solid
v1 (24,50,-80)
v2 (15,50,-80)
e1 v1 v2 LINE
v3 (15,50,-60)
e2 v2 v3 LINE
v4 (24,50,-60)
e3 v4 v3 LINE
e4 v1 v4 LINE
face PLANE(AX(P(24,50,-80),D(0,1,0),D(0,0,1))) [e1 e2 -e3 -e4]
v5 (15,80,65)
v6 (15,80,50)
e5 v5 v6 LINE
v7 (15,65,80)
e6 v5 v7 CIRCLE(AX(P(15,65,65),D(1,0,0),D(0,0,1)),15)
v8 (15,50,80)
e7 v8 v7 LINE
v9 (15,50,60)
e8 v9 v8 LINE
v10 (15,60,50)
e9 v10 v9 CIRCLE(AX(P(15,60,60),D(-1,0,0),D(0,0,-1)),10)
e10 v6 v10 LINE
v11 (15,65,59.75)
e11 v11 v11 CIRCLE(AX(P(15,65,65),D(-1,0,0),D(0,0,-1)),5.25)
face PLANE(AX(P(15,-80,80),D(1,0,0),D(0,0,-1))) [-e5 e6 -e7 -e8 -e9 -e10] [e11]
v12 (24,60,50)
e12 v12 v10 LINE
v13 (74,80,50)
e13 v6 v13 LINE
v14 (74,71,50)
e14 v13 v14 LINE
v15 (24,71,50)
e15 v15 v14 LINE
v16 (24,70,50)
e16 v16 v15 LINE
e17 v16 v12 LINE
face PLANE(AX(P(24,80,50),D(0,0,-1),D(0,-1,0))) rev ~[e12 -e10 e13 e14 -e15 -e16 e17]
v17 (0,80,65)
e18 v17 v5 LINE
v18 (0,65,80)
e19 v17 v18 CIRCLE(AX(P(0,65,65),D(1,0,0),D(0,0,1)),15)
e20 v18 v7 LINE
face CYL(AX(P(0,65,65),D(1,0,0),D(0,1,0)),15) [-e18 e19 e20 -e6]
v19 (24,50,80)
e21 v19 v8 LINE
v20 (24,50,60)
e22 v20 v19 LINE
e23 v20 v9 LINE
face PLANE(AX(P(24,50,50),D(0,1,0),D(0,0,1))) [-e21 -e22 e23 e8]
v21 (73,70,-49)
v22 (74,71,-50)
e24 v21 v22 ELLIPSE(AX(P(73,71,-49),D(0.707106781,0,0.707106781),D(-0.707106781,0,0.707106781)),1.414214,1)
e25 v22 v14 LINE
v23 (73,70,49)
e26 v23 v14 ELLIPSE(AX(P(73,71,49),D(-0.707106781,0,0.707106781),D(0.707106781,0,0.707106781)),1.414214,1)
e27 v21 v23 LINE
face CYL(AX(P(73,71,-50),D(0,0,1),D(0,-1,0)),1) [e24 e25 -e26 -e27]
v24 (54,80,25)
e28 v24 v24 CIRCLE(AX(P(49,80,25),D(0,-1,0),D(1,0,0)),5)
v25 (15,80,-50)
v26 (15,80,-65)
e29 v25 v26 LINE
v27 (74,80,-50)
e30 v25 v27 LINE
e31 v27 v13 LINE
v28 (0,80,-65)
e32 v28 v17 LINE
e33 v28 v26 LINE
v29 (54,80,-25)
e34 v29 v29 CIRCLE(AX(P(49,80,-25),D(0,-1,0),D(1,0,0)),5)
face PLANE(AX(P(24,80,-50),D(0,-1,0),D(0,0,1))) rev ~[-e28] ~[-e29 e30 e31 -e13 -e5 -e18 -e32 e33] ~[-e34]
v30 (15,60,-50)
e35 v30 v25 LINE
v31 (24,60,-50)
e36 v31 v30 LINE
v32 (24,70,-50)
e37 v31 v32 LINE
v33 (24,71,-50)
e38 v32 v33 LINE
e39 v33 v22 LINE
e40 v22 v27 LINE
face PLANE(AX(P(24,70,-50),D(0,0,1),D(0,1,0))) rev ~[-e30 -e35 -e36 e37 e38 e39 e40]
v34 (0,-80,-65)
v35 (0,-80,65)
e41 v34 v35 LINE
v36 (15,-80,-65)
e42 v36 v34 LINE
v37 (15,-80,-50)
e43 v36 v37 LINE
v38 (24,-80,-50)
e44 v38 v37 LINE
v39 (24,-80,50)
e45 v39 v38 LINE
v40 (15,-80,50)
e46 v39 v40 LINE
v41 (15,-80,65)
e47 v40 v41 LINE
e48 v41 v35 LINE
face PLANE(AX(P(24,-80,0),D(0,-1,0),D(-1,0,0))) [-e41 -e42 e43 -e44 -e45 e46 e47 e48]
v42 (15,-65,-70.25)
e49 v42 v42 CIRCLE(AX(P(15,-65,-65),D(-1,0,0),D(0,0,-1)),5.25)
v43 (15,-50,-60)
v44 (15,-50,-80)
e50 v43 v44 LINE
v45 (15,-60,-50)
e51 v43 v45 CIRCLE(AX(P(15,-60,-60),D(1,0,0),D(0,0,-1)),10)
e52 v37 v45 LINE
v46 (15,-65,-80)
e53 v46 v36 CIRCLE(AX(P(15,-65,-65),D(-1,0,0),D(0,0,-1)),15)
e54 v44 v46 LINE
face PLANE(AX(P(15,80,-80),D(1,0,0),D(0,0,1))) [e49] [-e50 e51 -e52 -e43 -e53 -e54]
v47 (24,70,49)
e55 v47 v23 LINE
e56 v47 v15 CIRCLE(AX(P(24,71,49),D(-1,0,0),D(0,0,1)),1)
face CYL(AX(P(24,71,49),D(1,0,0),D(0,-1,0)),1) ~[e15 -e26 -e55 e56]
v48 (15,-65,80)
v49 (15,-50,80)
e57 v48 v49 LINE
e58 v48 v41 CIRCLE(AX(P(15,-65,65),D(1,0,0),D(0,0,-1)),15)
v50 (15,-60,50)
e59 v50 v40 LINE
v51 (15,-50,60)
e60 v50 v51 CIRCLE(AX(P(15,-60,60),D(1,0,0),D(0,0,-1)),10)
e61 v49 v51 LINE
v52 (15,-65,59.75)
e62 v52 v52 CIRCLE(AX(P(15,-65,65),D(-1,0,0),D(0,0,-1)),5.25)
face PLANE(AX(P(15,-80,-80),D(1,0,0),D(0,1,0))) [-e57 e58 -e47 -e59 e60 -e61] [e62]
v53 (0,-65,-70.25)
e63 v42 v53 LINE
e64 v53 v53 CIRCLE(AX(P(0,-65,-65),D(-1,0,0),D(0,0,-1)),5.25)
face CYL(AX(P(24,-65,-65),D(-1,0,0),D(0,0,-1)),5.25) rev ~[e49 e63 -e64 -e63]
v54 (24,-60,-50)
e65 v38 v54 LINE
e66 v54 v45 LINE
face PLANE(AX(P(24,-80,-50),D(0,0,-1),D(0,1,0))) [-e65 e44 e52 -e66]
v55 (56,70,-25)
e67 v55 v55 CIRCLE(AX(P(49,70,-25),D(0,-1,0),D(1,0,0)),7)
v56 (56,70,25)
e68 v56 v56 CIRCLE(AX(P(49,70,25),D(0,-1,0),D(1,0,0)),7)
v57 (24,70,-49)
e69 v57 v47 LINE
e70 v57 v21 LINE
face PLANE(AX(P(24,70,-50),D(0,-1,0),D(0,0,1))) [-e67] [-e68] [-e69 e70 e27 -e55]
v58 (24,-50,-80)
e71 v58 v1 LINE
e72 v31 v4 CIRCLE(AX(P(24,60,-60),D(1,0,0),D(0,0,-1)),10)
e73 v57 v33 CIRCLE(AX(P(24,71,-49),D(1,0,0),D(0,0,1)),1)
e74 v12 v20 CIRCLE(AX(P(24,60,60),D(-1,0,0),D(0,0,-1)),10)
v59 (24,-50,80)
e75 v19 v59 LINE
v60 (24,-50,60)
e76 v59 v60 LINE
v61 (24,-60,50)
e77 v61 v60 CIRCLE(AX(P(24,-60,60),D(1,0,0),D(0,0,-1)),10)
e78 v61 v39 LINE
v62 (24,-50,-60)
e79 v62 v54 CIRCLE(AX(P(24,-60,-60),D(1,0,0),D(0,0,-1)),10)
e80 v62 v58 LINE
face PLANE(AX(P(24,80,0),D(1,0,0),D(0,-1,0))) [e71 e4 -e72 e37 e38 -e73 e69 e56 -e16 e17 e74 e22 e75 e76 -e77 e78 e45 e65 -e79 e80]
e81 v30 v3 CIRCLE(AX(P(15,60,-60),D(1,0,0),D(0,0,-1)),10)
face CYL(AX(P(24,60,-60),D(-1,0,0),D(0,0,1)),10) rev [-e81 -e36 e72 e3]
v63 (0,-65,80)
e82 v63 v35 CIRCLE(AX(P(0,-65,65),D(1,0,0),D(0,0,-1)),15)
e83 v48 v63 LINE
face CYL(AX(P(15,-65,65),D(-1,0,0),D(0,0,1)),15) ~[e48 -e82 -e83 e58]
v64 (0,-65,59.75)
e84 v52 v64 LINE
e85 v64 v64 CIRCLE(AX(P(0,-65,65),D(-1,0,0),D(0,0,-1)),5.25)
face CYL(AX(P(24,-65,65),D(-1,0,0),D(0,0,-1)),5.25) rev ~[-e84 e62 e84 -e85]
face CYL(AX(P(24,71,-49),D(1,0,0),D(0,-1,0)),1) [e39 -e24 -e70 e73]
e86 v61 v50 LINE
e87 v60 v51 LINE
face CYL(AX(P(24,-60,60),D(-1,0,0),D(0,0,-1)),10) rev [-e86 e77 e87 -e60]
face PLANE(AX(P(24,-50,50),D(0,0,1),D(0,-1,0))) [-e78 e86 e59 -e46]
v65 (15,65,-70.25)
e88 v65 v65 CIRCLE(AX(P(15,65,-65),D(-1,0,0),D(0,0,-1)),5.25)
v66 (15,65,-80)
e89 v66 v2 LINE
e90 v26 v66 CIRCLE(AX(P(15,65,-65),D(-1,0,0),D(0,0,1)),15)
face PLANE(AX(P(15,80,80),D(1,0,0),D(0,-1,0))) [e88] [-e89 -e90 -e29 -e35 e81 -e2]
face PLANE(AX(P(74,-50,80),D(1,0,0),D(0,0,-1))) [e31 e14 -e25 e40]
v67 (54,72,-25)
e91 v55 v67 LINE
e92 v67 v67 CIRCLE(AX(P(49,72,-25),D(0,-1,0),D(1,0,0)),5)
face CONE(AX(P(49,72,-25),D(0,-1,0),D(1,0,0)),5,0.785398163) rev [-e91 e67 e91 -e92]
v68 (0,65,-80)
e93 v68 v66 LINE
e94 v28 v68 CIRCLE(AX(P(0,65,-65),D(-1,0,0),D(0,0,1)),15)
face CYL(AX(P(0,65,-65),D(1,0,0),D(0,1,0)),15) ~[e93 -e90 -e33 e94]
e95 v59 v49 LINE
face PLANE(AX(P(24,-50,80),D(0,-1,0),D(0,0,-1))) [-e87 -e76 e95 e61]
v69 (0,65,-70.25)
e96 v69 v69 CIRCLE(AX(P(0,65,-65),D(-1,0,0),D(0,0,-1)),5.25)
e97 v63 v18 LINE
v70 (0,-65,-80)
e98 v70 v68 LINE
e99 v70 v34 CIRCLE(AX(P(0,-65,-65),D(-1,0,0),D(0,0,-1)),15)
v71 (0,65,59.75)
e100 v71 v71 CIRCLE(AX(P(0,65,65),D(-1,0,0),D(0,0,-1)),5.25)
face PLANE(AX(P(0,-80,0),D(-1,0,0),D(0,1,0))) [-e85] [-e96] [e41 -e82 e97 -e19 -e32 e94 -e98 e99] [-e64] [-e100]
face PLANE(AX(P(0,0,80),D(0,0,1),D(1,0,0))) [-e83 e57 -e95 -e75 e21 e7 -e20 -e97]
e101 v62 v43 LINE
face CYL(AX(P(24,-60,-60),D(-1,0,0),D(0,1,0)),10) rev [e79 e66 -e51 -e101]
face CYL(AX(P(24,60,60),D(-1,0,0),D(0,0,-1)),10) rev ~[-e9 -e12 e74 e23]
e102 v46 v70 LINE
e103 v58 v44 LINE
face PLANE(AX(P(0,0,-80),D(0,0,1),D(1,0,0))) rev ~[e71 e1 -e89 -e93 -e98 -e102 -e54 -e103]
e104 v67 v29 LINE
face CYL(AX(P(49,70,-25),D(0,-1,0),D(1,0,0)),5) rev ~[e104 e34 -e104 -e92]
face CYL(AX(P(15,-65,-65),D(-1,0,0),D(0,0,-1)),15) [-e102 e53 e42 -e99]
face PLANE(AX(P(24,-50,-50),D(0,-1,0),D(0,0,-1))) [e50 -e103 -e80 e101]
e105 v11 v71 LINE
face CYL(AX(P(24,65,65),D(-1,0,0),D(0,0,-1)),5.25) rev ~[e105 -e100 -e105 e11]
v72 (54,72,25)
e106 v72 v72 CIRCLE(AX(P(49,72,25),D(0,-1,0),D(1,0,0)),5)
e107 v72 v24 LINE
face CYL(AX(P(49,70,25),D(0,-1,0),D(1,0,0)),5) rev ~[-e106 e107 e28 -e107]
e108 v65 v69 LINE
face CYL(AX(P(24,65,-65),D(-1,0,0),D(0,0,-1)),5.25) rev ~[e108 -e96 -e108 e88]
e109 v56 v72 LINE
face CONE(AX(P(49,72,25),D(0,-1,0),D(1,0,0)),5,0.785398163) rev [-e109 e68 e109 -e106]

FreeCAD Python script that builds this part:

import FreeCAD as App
import Part
import Sketcher


def edges_at(feature, points):
    """Names of the edges that pass closest to the given points."""
    edges = feature.Shape.Edges
    near = lambda p: min(range(len(edges)), key=lambda i: edges[i].distToShape(Part.Vertex(*p))[0])
    return sorted({f"Edge{near(p) + 1}" for p in points})

doc = App.newDocument("Part")
params = doc.addObject("Spreadsheet::Sheet", "Params")
for row, (alias, value) in enumerate([
    ("sketch1_width", "24 mm"),
    ("sketch1_height", "160 mm"),
    ("pad1_length", "160 mm"),
    ("sketch2_width", "30 mm"),
    ("pocket1_length", "9 mm"),
    ("sketch3_diameter", "10.5 mm"),
    ("hole_diameter", "10.5 mm"),
    ("fillet_radius", "15 mm"),
    ("fillet2_radius", "10 mm"),
    ("sketch4_width", "10 mm"),
    ("sketch4_height", "100 mm"),
    ("pad2_length", "50 mm"),
    ("sketch5_diameter", "10 mm"),
    ("pocket2_length", "10 mm"),
    ("chamfer_size", "2 mm"),
    ("fillet3_radius", "1 mm"),
], start=1):
    params.set(f"A{row}", alias)
    params.set(f"B{row}", "=" + value)
    params.setAlias(f"B{row}", alias)

body = doc.addObject("PartDesign::Body", "Body")

sketch1 = body.newObject("Sketcher::SketchObject", "Sketch")
sketch1.AttachmentSupport = (doc.getObject("XY_Plane"), [""])
sketch1.MapMode = "FlatFace"
sketch1.addGeometry(Part.LineSegment(App.Vector(24, 80, 0), App.Vector(0, 80, 0)), False)
sketch1.addGeometry(Part.LineSegment(App.Vector(0, 80, 0), App.Vector(0, -80, 0)), False)
sketch1.addGeometry(Part.LineSegment(App.Vector(0, -80, 0), App.Vector(24, -80, 0)), False)
sketch1.addGeometry(Part.LineSegment(App.Vector(24, -80, 0), App.Vector(24, 80, 0)), False)
sketch1.addConstraint(Sketcher.Constraint("Coincident", 0, 2, 1, 1))
sketch1.addConstraint(Sketcher.Constraint("Coincident", 1, 2, 2, 1))
sketch1.addConstraint(Sketcher.Constraint("Coincident", 2, 2, 3, 1))
sketch1.addConstraint(Sketcher.Constraint("Coincident", 3, 2, 0, 1))
sketch1.addConstraint(Sketcher.Constraint("Horizontal", 0))
sketch1.addConstraint(Sketcher.Constraint("Vertical", 1))
sketch1.addConstraint(Sketcher.Constraint("Horizontal", 2))
sketch1.addConstraint(Sketcher.Constraint("Vertical", 3))
sketch1.addConstraint(Sketcher.Constraint("Symmetric", 0, 2, 1, 2, -1, 1))
sketch1.addConstraint(Sketcher.Constraint("DistanceX", 0, 2, 0, 1, 24.0))
sketch1.addConstraint(Sketcher.Constraint("DistanceY", 1, 2, 1, 1, 160.0))
sketch1.setExpression("Constraints[9]", "Params.sketch1_width")
sketch1.setExpression("Constraints[10]", "Params.sketch1_height")
pad1 = body.newObject("PartDesign::Pad", "Pad")
pad1.Profile = sketch1
pad1.setExpression("Length", "Params.pad1_length")
pad1.Midplane = True

sketch2 = body.newObject("Sketcher::SketchObject", "Sketch001")
sketch2.AttachmentSupport = (doc.getObject("YZ_Plane"), [""])
sketch2.MapMode = "FlatFace"
sketch2.AttachmentOffset = App.Placement(App.Vector(0, 0, 24), App.Rotation())
sketch2.addGeometry(Part.LineSegment(App.Vector(80, 50, 0), App.Vector(80, 80, 0)), False)
sketch2.addGeometry(Part.LineSegment(App.Vector(80, 80, 0), App.Vector(50, 80, 0)), False)
sketch2.addGeometry(Part.LineSegment(App.Vector(50, 80, 0), App.Vector(50, 50, 0)), False)
sketch2.addGeometry(Part.LineSegment(App.Vector(50, 50, 0), App.Vector(80, 50, 0)), False)
sketch2.addConstraint(Sketcher.Constraint("Coincident", 0, 2, 1, 1))
sketch2.addConstraint(Sketcher.Constraint("Coincident", 1, 2, 2, 1))
sketch2.addConstraint(Sketcher.Constraint("Coincident", 2, 2, 3, 1))
sketch2.addConstraint(Sketcher.Constraint("Coincident", 3, 2, 0, 1))
sketch2.addConstraint(Sketcher.Constraint("Vertical", 0))
sketch2.addConstraint(Sketcher.Constraint("Horizontal", 1))
sketch2.addConstraint(Sketcher.Constraint("Vertical", 2))
sketch2.addConstraint(Sketcher.Constraint("Horizontal", 3))
sketch2.addConstraint(Sketcher.Constraint("Equal", 3, 0))
sketch2.addConstraint(Sketcher.Constraint("DistanceX", 1, 2, 1, 1, 30.0))
sketch2.addConstraint(Sketcher.Constraint("DistanceX", -1, 1, 0, 2, 80.0))
sketch2.addConstraint(Sketcher.Constraint("DistanceY", -1, 1, 0, 2, 80.0))
sketch2.setExpression("Constraints[9]", "Params.sketch2_width")
pocket1 = body.newObject("PartDesign::Pocket", "Pocket")
pocket1.Profile = sketch2
pocket1.setExpression("Length", "Params.pocket1_length")
doc.recompute()

polarpattern = body.newObject("PartDesign::PolarPattern", "PolarPattern")
polarpattern.Originals = [pocket1]
polarpattern.Axis = (doc.getObject("X_Axis"), [""])
polarpattern.Angle = 360
polarpattern.Occurrences = 4
body.Tip = polarpattern

sketch3 = body.newObject("Sketcher::SketchObject", "Sketch002")
sketch3.AttachmentSupport = (doc.getObject("YZ_Plane"), [""])
sketch3.MapMode = "FlatFace"
sketch3.AttachmentOffset = App.Placement(App.Vector(0, 0, 24), App.Rotation())
sketch3.addGeometry(Part.Circle(App.Vector(65, 65, 0), App.Vector(0, 0, 1), 5), False)
sketch3.addGeometry(Part.Circle(App.Vector(-65, 65, 0), App.Vector(0, 0, 1), 5), False)
sketch3.addGeometry(Part.Circle(App.Vector(65, -65, 0), App.Vector(0, 0, 1), 5), False)
sketch3.addGeometry(Part.Circle(App.Vector(-65, -65, 0), App.Vector(0, 0, 1), 5), False)
sketch3.addConstraint(Sketcher.Constraint("Equal", 0, 1))
sketch3.addConstraint(Sketcher.Constraint("Equal", 1, 2))
sketch3.addConstraint(Sketcher.Constraint("Equal", 2, 3))
sketch3.addConstraint(Sketcher.Constraint("Symmetric", 1, 3, 2, 3, -1, 1))
sketch3.addConstraint(Sketcher.Constraint("Symmetric", 0, 3, 3, 3, -1, 1))
sketch3.addConstraint(Sketcher.Constraint("Symmetric", 0, 3, 1, 3, -2))
sketch3.addConstraint(Sketcher.Constraint("Diameter", 0, 10.5))
sketch3.addConstraint(Sketcher.Constraint("DistanceX", -1, 1, 0, 3, 65.0))
sketch3.addConstraint(Sketcher.Constraint("DistanceY", -1, 1, 0, 3, 65.0))
sketch3.setExpression("Constraints[6]", "Params.sketch3_diameter")
doc.recompute()
hole = body.newObject("PartDesign::Hole", "Hole")
hole.Profile = sketch3
hole.ThreadType = "None"
hole.setExpression("Diameter", "Params.hole_diameter")
hole.DepthType = "ThroughAll"
doc.recompute()

fillet = body.newObject("PartDesign::Fillet", "Fillet")
fillet.Base = (hole, edges_at(hole, [
    (7.5, 80, -80),
    (7.5, -80, -80),
    (7.5, -80, 80),
    (7.5, 80, 80),
]))
fillet.setExpression("Radius", "Params.fillet_radius")
doc.recompute()

fillet2 = body.newObject("PartDesign::Fillet", "Fillet001")
fillet2.Base = (fillet, edges_at(fillet, [
    (19.5, -50, 50),
    (19.5, -50, -50),
    (19.5, 50, -50),
    (19.5, 50, 50),
]))
fillet2.setExpression("Radius", "Params.fillet2_radius")

sketch4 = body.newObject("Sketcher::SketchObject", "Sketch003")
sketch4.AttachmentSupport = (doc.getObject("YZ_Plane"), [""])
sketch4.MapMode = "FlatFace"
sketch4.AttachmentOffset = App.Placement(App.Vector(0, 0, 24), App.Rotation())
sketch4.addGeometry(Part.LineSegment(App.Vector(70, -50, 0), App.Vector(80, -50, 0)), False)
sketch4.addGeometry(Part.LineSegment(App.Vector(80, -50, 0), App.Vector(80, 50, 0)), False)
sketch4.addGeometry(Part.LineSegment(App.Vector(80, 50, 0), App.Vector(70, 50, 0)), False)
sketch4.addGeometry(Part.LineSegment(App.Vector(70, 50, 0), App.Vector(70, -50, 0)), False)
sketch4.addConstraint(Sketcher.Constraint("Coincident", 0, 2, 1, 1))
sketch4.addConstraint(Sketcher.Constraint("Coincident", 1, 2, 2, 1))
sketch4.addConstraint(Sketcher.Constraint("Coincident", 2, 2, 3, 1))
sketch4.addConstraint(Sketcher.Constraint("Coincident", 3, 2, 0, 1))
sketch4.addConstraint(Sketcher.Constraint("Horizontal", 0))
sketch4.addConstraint(Sketcher.Constraint("Vertical", 1))
sketch4.addConstraint(Sketcher.Constraint("Horizontal", 2))
sketch4.addConstraint(Sketcher.Constraint("Vertical", 3))
sketch4.addConstraint(Sketcher.Constraint("DistanceX", 0, 1, 0, 2, 10.0))
sketch4.addConstraint(Sketcher.Constraint("DistanceY", 1, 1, 1, 2, 100.0))
sketch4.addConstraint(Sketcher.Constraint("DistanceX", -1, 1, 0, 2, 80.0))
sketch4.addConstraint(Sketcher.Constraint("DistanceY", 0, 2, -1, 1, 50.0))
sketch4.setExpression("Constraints[8]", "Params.sketch4_width")
sketch4.setExpression("Constraints[9]", "Params.sketch4_height")
pad2 = body.newObject("PartDesign::Pad", "Pad001")
pad2.Profile = sketch4
pad2.setExpression("Length", "Params.pad2_length")

sketch5 = body.newObject("Sketcher::SketchObject", "Sketch004")
sketch5.AttachmentSupport = (doc.getObject("XZ_Plane"), [""])
sketch5.MapMode = "FlatFace"
sketch5.AttachmentOffset = App.Placement(App.Vector(0, 0, -70), App.Rotation())
sketch5.addGeometry(Part.Circle(App.Vector(49, -25, 0), App.Vector(0, 0, 1), 5), False)
sketch5.addGeometry(Part.Circle(App.Vector(49, 25, 0), App.Vector(0, 0, 1), 5), False)
sketch5.addConstraint(Sketcher.Constraint("Equal", 0, 1))
sketch5.addConstraint(Sketcher.Constraint("Symmetric", 0, 3, 1, 3, -1))
sketch5.addConstraint(Sketcher.Constraint("Diameter", 0, 10.0))
sketch5.addConstraint(Sketcher.Constraint("DistanceX", -1, 1, 0, 3, 49.0))
sketch5.addConstraint(Sketcher.Constraint("DistanceY", 0, 3, -1, 1, 25.0))
sketch5.setExpression("Constraints[2]", "Params.sketch5_diameter")
pocket2 = body.newObject("PartDesign::Pocket", "Pocket001")
pocket2.Profile = sketch5
pocket2.setExpression("Length", "Params.pocket2_length")
doc.recompute()

chamfer = body.newObject("PartDesign::Chamfer", "Chamfer")
chamfer.Base = (pocket2, edges_at(pocket2, [(44, 70, -25), (44, 70, 25)]))
chamfer.setExpression("Size", "Params.chamfer_size")
doc.recompute()

fillet3 = body.newObject("PartDesign::Fillet", "Fillet002")
fillet3.Base = (chamfer, edges_at(chamfer, [(74, 70, 0), (49, 70, -50), (49, 70, 50)]))
fillet3.setExpression("Radius", "Params.fillet3_radius")

doc.recompute()
